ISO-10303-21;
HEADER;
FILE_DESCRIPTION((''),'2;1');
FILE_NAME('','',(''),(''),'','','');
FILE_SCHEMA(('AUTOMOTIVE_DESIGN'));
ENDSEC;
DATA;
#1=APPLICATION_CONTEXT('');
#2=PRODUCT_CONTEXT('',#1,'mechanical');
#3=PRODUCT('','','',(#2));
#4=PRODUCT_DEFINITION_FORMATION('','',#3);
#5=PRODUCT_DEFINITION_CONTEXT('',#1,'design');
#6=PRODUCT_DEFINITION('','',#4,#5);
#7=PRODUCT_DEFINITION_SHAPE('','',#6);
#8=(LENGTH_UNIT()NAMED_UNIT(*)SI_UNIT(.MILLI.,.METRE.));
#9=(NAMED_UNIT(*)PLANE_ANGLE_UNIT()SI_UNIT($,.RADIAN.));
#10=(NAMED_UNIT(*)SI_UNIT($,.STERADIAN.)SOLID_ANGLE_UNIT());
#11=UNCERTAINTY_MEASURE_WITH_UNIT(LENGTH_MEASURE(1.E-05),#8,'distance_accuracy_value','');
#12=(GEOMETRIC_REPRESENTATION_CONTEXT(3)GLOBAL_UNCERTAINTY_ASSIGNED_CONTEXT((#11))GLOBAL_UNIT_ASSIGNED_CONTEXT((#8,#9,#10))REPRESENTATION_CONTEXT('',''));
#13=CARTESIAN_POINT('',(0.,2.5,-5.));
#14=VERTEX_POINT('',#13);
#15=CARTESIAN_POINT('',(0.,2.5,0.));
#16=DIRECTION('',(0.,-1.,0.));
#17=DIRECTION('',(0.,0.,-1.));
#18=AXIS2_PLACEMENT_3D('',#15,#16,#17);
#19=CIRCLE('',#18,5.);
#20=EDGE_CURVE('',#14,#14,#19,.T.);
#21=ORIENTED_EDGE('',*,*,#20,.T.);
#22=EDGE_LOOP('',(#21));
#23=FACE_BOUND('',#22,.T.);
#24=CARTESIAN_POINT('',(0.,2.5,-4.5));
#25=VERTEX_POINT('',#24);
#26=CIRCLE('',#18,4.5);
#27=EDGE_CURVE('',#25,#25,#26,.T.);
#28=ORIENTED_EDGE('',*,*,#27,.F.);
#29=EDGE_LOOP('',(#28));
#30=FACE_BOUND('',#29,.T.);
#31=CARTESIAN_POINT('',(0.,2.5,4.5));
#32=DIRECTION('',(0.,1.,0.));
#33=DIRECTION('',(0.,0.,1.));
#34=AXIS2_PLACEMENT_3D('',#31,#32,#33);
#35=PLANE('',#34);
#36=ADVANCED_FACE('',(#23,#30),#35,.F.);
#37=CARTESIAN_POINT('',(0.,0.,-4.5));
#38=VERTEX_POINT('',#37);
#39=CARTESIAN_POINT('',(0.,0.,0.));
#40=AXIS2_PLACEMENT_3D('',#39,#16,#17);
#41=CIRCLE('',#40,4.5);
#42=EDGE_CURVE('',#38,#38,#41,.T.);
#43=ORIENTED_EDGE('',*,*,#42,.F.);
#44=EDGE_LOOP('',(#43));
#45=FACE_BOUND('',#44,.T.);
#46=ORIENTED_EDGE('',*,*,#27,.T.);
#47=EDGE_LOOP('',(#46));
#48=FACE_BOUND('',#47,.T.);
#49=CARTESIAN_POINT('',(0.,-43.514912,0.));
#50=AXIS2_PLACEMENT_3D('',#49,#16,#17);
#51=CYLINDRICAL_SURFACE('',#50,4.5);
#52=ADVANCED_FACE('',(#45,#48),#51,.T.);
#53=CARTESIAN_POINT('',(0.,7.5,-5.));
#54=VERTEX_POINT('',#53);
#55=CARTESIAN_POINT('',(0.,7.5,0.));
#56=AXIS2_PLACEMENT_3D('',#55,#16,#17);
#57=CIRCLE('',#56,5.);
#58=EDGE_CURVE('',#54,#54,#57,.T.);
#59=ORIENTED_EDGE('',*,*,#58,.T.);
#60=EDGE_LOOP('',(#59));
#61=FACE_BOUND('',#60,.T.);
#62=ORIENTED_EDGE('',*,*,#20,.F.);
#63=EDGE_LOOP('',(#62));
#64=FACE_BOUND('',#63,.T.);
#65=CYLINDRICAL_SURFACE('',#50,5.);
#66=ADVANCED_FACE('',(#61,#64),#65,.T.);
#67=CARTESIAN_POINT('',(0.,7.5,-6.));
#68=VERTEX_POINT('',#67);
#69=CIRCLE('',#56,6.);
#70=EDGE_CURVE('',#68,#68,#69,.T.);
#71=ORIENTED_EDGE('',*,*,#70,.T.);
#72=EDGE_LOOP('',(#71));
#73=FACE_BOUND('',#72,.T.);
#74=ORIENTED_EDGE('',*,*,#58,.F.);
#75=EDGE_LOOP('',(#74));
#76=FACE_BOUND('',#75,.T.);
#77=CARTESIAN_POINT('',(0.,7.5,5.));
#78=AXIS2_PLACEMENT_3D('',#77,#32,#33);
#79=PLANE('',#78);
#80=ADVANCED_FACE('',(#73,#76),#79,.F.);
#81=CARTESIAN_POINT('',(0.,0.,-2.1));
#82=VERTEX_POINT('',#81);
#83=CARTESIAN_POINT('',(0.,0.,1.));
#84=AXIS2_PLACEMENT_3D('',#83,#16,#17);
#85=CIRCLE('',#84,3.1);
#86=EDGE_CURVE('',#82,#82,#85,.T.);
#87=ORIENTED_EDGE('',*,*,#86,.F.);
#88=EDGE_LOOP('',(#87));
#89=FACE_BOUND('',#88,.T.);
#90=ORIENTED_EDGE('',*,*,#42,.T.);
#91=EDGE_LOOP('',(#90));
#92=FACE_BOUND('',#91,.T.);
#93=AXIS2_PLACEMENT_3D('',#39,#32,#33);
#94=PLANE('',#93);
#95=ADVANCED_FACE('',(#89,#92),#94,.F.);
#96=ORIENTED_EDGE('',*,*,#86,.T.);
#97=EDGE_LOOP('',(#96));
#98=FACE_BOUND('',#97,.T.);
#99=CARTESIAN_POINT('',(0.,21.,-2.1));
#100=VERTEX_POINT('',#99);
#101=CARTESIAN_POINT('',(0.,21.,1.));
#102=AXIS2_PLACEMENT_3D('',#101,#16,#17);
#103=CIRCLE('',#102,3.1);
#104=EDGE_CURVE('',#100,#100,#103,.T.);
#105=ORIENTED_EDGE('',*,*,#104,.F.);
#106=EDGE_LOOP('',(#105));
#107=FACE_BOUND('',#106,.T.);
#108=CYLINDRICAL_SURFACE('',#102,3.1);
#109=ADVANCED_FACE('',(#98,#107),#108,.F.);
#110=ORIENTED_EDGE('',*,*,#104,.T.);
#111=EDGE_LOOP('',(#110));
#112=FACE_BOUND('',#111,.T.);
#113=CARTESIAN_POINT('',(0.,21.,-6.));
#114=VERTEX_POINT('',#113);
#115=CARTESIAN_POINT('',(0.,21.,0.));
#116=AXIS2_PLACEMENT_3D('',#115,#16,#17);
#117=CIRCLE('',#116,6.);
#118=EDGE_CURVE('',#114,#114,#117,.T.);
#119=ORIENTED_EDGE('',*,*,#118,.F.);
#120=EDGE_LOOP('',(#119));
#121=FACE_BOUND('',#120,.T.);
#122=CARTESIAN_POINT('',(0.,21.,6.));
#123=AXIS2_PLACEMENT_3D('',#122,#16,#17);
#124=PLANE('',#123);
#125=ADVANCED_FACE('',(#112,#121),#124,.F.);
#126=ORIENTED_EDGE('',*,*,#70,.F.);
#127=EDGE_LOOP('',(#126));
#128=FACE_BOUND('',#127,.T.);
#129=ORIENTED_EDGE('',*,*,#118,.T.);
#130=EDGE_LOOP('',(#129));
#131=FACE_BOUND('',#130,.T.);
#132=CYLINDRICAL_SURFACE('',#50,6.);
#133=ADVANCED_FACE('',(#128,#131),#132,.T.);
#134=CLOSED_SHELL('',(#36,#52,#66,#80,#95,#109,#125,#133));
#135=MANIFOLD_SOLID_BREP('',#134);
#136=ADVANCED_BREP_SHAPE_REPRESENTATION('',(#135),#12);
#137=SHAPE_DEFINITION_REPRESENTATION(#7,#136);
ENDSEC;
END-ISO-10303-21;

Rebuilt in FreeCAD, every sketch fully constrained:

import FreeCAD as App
import Part
import Sketcher

doc = App.newDocument("Part")
body = doc.addObject("PartDesign::Body", "Body")

sketch1 = body.newObject("Sketcher::SketchObject", "Sketch")
sketch1.AttachmentSupport = (doc.getObject("YZ_Plane"), [""])
sketch1.MapMode = "FlatFace"
sketch1.addGeometry(Part.LineSegment(App.Vector(2.5, 5, 0), App.Vector(2.5, 4.5, 0)), False)
sketch1.addGeometry(Part.LineSegment(App.Vector(2.5, 4.5, 0), App.Vector(0, 4.5, 0)), False)
sketch1.addGeometry(Part.LineSegment(App.Vector(0, 4.5, 0), App.Vector(0, 0, 0)), False)
sketch1.addGeometry(Part.LineSegment(App.Vector(0, 0, 0), App.Vector(21, 0, 0)), False)
sketch1.addGeometry(Part.LineSegment(App.Vector(21, 0, 0), App.Vector(21, 6, 0)), False)
sketch1.addGeometry(Part.LineSegment(App.Vector(21, 6, 0), App.Vector(7.5, 6, 0)), False)
sketch1.addGeometry(Part.LineSegment(App.Vector(7.5, 6, 0), App.Vector(7.5, 5, 0)), False)
sketch1.addGeometry(Part.LineSegment(App.Vector(7.5, 5, 0), App.Vector(2.5, 5, 0)), False)
sketch1.addConstraint(Sketcher.Constraint("Coincident", 0, 2, 1, 1))
sketch1.addConstraint(Sketcher.Constraint("Coincident", 1, 2, 2, 1))
sketch1.addConstraint(Sketcher.Constraint("Coincident", 2, 2, 3, 1))
sketch1.addConstraint(Sketcher.Constraint("Coincident", 3, 2, 4, 1))
sketch1.addConstraint(Sketcher.Constraint("Coincident", 4, 2, 5, 1))
sketch1.addConstraint(Sketcher.Constraint("Coincident", 5, 2, 6, 1))
sketch1.addConstraint(Sketcher.Constraint("Coincident", 6, 2, 7, 1))
sketch1.addConstraint(Sketcher.Constraint("Coincident", 7, 2, 0, 1))
sketch1.addConstraint(Sketcher.Constraint("Vertical", 0))
sketch1.addConstraint(Sketcher.Constraint("Horizontal", 1))
sketch1.addConstraint(Sketcher.Constraint("Vertical", 2))
sketch1.addConstraint(Sketcher.Constraint("Horizontal", 3))
sketch1.addConstraint(Sketcher.Constraint("Vertical", 4))
sketch1.addConstraint(Sketcher.Constraint("Horizontal", 5))
sketch1.addConstraint(Sketcher.Constraint("Vertical", 6))
sketch1.addConstraint(Sketcher.Constraint("Horizontal", 7))
sketch1.addConstraint(Sketcher.Constraint("Coincident", 2, 2, -1, 1))
sketch1.addConstraint(Sketcher.Constraint("DistanceX", 3, 1, 3, 2, 21.0))
sketch1.addConstraint(Sketcher.Constraint("DistanceX", 7, 2, 7, 1, 5.0))
sketch1.addConstraint(Sketcher.Constraint("DistanceY", 4, 1, 4, 2, 6.0))
sketch1.addConstraint(Sketcher.Constraint("DistanceY", 6, 2, 6, 1, 1.0))
sketch1.addConstraint(Sketcher.Constraint("DistanceX", 1, 2, 1, 1, 2.5))
sketch1.addConstraint(Sketcher.Constraint("DistanceY", 0, 2, 0, 1, 0.5))
revolution = body.newObject("PartDesign::Revolution", "Revolution")
revolution.Profile = sketch1
revolution.ReferenceAxis = (sketch1, ["H_Axis"])
revolution.Angle = 360

sketch2 = body.newObject("Sketcher::SketchObject", "Sketch001")
sketch2.AttachmentSupport = (doc.getObject("XZ_Plane"), [""])
sketch2.MapMode = "FlatFace"
sketch2.addGeometry(Part.Circle(App.Vector(0, 1, 0), App.Vector(0, 0, 1), 3.1), False)
sketch2.addConstraint(Sketcher.Constraint("PointOnObject", 0, 3, -2))
sketch2.addConstraint(Sketcher.Constraint("Diameter", 0, 6.2))
sketch2.addConstraint(Sketcher.Constraint("DistanceY", -1, 1, 0, 3, 1.0))
pocket1 = body.newObject("PartDesign::Pocket", "Pocket")
pocket1.Profile = sketch2
pocket1.Type = "ThroughAll"

doc.recompute()
